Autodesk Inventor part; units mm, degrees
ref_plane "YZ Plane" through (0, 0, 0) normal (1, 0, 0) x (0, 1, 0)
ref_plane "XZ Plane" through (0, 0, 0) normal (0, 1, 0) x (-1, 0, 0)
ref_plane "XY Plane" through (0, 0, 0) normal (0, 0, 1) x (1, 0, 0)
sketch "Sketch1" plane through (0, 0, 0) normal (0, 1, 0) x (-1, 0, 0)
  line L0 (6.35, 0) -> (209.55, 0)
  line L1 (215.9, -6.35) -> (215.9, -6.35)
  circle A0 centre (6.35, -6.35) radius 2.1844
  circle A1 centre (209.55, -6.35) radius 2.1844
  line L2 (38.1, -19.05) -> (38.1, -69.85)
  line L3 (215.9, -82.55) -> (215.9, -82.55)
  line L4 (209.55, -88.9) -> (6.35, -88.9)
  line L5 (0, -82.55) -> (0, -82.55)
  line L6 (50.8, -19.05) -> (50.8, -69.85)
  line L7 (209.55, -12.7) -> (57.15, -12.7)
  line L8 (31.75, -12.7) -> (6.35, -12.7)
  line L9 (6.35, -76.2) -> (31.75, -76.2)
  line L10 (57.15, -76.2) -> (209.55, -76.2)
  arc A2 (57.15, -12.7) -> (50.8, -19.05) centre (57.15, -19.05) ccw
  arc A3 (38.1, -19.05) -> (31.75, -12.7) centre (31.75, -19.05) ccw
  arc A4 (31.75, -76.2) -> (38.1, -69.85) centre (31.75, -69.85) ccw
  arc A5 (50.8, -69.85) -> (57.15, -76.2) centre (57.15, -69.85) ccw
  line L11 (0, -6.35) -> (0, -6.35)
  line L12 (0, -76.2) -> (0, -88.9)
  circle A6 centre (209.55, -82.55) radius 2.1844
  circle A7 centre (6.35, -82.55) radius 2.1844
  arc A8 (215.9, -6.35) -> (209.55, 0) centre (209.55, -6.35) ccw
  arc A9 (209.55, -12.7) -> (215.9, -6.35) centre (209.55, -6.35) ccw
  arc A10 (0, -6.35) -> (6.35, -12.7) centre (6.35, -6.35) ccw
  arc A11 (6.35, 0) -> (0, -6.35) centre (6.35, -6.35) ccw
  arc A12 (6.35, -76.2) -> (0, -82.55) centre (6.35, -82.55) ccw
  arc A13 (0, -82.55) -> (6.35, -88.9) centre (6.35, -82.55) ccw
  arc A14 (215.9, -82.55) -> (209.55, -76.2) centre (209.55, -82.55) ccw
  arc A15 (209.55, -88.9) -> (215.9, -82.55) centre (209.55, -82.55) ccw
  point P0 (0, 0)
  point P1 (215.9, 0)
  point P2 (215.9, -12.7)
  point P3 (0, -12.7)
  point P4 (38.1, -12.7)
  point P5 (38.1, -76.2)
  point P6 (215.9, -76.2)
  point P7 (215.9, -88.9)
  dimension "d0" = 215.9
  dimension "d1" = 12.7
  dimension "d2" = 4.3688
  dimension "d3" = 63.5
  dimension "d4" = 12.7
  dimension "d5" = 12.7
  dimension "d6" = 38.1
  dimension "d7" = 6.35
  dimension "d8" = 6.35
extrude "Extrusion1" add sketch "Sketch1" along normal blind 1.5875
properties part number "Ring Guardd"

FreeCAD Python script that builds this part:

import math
import FreeCAD as App
import Part
import Sketcher

V = App.Vector
Q = App.Units.Quantity

doc = App.newDocument("Part")
body = doc.addObject("PartDesign::Body", "Body")

# Sketch on XZ plane
sketch1 = body.newObject("Sketcher::SketchObject", "Sketch")
sketch1.AttachmentSupport = (doc.getObject("XZ_Plane"), [""])
sketch1.MapMode = "FlatFace"
sketch1.addGeometry([
    Part.LineSegment(V(-209.6, 0, 0), V(-6.3, 0, 0)),  # 0
    Part.ArcOfCircle(Part.Circle(V(-6.3, -6.3, 0), V(0, 0, 1), 6.3), math.radians(-90), math.radians(90)),  # 1
    Part.LineSegment(V(-6.3, -12.7, 0), V(-31.8, -12.7, 0)),  # 2
    Part.ArcOfCircle(Part.Circle(V(-31.8, -19.1, 0), V(0, 0, 1), 6.4), math.radians(90), math.radians(180)),  # 3
    Part.LineSegment(V(-38.1, -19.1, 0), V(-38.1, -69.8, 0)),  # 4
    Part.ArcOfCircle(Part.Circle(V(-31.8, -69.8, 0), V(0, 0, 1), 6.4), math.radians(180), math.radians(270)),  # 5
    Part.LineSegment(V(-31.8, -76.2, 0), V(-6.3, -76.2, 0)),  # 6
    Part.ArcOfCircle(Part.Circle(V(-6.3, -82.5, 0), V(0, 0, 1), 6.3), math.radians(-90), math.radians(90)),  # 7
    Part.LineSegment(V(-6.3, -88.9, 0), V(-209.6, -88.9, 0)),  # 8
    Part.ArcOfCircle(Part.Circle(V(-209.6, -82.5, 0), V(0, 0, 1), 6.3), math.radians(90), math.radians(270)),  # 9
    Part.LineSegment(V(-209.6, -76.2, 0), V(-57.1, -76.2, 0)),  # 10
    Part.ArcOfCircle(Part.Circle(V(-57.1, -69.8, 0), V(0, 0, 1), 6.4), math.radians(-90), math.radians(0)),  # 11
    Part.LineSegment(V(-50.8, -69.8, 0), V(-50.8, -19.1, 0)),  # 12
    Part.ArcOfCircle(Part.Circle(V(-57.1, -19.1, 0), V(0, 0, 1), 6.4), math.radians(0), math.radians(90)),  # 13
    Part.LineSegment(V(-57.1, -12.7, 0), V(-209.6, -12.7, 0)),  # 14
    Part.ArcOfCircle(Part.Circle(V(-209.6, -6.3, 0), V(0, 0, 1), 6.3), math.radians(90), math.radians(270)),  # 15
    Part.Circle(V(-6.3, -82.5, 0), V(0, 0, 1), 2.2),  # 16
    Part.Circle(V(-209.6, -82.5, 0), V(0, 0, 1), 2.2),  # 17
    Part.Circle(V(-6.3, -6.3, 0), V(0, 0, 1), 2.2),  # 18
    Part.Circle(V(-209.6, -6.3, 0), V(0, 0, 1), 2.2),  # 19
], False)
sketch1.addConstraint([
    Sketcher.Constraint("Tangent", 0, 2, 1, 2),
    Sketcher.Constraint("Tangent", 1, 1, 2, 1),
    Sketcher.Constraint("Tangent", 2, 2, 3, 1),
    Sketcher.Constraint("Tangent", 3, 2, 4, 1),
    Sketcher.Constraint("Tangent", 4, 2, 5, 1),
    Sketcher.Constraint("Tangent", 5, 2, 6, 1),
    Sketcher.Constraint("Tangent", 6, 2, 7, 2),
    Sketcher.Constraint("Tangent", 7, 1, 8, 1),
    Sketcher.Constraint("Tangent", 8, 2, 9, 2),
    Sketcher.Constraint("Tangent", 9, 1, 10, 1),
    Sketcher.Constraint("Tangent", 10, 2, 11, 1),
    Sketcher.Constraint("Tangent", 11, 2, 12, 1),
    Sketcher.Constraint("Tangent", 12, 2, 13, 1),
    Sketcher.Constraint("Tangent", 13, 2, 14, 1),
    Sketcher.Constraint("Tangent", 14, 2, 15, 2),
    Sketcher.Constraint("Tangent", 15, 1, 0, 1),
    Sketcher.Constraint("Horizontal", 0),
    Sketcher.Constraint("Horizontal", 2),
    Sketcher.Constraint("Vertical", 4),
    Sketcher.Constraint("Horizontal", 6),
    Sketcher.Constraint("Horizontal", 8),
    Sketcher.Constraint("Horizontal", 10),
    Sketcher.Constraint("Vertical", 12),
    Sketcher.Constraint("Horizontal", 14),
    Sketcher.Constraint("Coincident", 16, 3, 7, 3),
    Sketcher.Constraint("Coincident", 17, 3, 9, 3),
    Sketcher.Constraint("Coincident", 18, 3, 1, 3),
    Sketcher.Constraint("Coincident", 19, 3, 15, 3),
    Sketcher.Constraint("Equal", 1, 3),
    Sketcher.Constraint("Equal", 3, 5),
    Sketcher.Constraint("Equal", 5, 7),
    Sketcher.Constraint("Equal", 7, 9),
    Sketcher.Constraint("Equal", 9, 11),
    Sketcher.Constraint("Equal", 11, 13),
    Sketcher.Constraint("Equal", 13, 15),
    Sketcher.Constraint("Equal", 16, 17),
    Sketcher.Constraint("Equal", 17, 18),
    Sketcher.Constraint("Equal", 18, 19),
    Sketcher.Constraint("PointOnObject", 0, 2, -1),
    Sketcher.Constraint("Vertical", 1, 3, 7, 3),
    Sketcher.Constraint("Vertical", 9, 3, 15, 3),
    Sketcher.Constraint("Radius", 1, Q("0.25 in")),
    Sketcher.Constraint("Diameter", 16, Q("0.172 in")),
    Sketcher.Constraint("DistanceX", 3, 2, -1, 1, Q("1.5 in")),
    Sketcher.Constraint("DistanceY", 5, 3, 1, 3, Q("2.5 in")),
    Sketcher.Constraint("DistanceX", 11, 2, 4, 2, Q("0.5 in")),
    Sketcher.Constraint("DistanceX", 0, 1, 0, 2, Q("8 in")),
    Sketcher.Constraint("DistanceX", 2, 2, 2, 1, Q("1 in")),
])
pad1 = body.newObject("PartDesign::Pad", "Pad")
pad1.Profile = sketch1
pad1.Length = Q("0.0625 in")
pad1.Reversed = True

doc.recompute()
